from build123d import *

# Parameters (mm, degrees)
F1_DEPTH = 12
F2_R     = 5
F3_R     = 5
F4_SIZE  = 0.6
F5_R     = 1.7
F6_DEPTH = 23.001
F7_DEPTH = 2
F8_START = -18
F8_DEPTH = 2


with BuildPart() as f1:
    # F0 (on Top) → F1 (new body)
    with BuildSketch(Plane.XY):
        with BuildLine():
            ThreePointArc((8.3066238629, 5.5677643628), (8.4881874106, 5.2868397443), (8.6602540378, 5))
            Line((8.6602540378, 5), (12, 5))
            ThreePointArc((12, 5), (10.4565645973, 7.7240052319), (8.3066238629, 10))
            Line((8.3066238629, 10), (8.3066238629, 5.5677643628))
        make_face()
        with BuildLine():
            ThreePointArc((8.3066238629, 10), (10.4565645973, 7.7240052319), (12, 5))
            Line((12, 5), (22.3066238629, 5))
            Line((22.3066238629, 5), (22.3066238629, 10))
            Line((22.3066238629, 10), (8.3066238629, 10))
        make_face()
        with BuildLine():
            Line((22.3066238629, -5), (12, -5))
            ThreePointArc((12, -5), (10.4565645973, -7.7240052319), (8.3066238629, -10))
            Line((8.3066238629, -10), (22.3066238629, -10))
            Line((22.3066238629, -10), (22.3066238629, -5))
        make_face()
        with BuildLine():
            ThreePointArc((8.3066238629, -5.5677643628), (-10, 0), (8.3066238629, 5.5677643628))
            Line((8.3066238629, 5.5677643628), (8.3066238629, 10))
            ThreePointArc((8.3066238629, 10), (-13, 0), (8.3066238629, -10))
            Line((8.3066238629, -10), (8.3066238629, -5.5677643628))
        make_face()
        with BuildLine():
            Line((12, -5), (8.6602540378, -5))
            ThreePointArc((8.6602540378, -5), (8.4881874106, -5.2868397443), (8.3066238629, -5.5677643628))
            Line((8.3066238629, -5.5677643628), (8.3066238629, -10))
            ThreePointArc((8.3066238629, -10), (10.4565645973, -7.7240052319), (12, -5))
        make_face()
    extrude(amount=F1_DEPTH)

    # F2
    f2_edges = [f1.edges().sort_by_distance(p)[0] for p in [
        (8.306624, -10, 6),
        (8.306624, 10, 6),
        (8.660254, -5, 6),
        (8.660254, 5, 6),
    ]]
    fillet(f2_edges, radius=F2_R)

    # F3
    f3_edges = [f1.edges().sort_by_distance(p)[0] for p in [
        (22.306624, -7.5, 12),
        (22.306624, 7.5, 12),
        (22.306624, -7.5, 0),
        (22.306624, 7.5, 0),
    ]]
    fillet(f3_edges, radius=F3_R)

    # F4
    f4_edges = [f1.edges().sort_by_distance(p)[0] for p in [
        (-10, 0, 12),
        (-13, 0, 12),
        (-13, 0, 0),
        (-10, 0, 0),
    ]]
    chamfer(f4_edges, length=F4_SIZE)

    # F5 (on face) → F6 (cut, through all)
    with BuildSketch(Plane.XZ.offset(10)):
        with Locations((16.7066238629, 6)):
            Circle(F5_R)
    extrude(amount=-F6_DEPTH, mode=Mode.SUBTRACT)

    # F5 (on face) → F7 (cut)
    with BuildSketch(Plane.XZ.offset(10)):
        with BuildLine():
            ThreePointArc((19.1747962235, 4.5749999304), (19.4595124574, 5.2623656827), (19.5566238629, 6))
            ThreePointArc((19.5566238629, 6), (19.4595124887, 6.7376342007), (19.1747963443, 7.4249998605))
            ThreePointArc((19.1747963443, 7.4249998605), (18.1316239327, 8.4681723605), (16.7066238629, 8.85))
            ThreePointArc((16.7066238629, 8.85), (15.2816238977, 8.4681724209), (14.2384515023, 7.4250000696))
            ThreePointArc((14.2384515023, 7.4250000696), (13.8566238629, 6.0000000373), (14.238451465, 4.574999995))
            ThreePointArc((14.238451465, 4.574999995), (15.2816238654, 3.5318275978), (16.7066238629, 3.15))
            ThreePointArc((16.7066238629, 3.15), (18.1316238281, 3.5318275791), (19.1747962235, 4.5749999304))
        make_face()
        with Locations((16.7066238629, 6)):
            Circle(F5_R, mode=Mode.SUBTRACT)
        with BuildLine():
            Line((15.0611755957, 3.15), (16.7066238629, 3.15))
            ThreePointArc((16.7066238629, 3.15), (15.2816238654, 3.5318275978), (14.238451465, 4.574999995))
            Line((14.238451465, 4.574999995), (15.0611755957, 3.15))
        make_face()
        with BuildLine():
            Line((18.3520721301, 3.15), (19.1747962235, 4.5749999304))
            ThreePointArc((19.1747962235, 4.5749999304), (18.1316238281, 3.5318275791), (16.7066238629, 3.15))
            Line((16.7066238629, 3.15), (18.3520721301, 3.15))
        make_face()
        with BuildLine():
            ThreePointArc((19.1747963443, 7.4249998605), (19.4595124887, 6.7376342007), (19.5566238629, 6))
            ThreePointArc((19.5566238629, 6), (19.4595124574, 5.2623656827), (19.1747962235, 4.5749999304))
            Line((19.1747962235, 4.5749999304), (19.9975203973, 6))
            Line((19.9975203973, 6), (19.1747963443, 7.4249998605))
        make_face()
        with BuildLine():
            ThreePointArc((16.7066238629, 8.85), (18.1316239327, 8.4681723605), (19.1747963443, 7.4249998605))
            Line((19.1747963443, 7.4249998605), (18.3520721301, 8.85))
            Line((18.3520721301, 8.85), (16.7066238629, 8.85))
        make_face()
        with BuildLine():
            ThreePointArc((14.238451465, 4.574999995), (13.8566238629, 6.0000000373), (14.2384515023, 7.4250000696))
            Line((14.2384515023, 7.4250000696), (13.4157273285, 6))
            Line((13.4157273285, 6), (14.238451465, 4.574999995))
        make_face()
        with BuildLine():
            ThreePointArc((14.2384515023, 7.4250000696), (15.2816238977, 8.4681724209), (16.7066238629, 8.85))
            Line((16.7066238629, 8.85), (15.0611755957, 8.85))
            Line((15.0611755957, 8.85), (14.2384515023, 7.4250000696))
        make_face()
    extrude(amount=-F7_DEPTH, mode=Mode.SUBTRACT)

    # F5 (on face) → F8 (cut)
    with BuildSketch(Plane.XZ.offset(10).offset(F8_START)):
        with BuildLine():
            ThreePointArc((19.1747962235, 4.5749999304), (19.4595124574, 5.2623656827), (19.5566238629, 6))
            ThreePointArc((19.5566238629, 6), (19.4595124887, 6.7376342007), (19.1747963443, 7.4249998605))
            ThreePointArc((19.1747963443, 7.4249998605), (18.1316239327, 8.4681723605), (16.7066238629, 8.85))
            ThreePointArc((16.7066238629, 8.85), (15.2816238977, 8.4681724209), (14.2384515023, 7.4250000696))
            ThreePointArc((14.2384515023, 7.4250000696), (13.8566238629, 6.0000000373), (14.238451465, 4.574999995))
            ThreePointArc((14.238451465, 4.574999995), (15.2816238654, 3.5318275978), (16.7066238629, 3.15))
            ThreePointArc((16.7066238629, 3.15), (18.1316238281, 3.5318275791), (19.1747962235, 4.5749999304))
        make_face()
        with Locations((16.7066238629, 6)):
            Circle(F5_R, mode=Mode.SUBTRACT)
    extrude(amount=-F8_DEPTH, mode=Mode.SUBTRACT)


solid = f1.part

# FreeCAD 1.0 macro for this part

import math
import FreeCAD as App
import Part
import Sketcher
from FreeCAD import Vector
Q = App.Units.Quantity


def edges_at(feature, points):
    """Names of the edges that pass closest to the given points."""
    edges = feature.Shape.Edges
    near = lambda p: min(range(len(edges)), key=lambda i: edges[i].distToShape(Part.Vertex(*p))[0])
    return sorted({f"Edge{near(p) + 1}" for p in points})

doc = App.newDocument("Part")
params = doc.addObject("Spreadsheet::Sheet", "Params")
for row, (alias, value) in enumerate([
    ("sketch1_radius", "13 mm"),
    ("sketch1_radius2", "10 mm"),
    ("sketch1_width", "14 mm"),
    ("sketch1_height", "5 mm"),
    ("pad1_length", "12 mm"),
    ("fillet_radius", "5 mm"),
    ("fillet2_radius", "5 mm"),
    ("chamfer_size", "0.6 mm"),
    ("sketch2_diameter", "3.4 mm"),
    ("sketch3_diameter", "3.4 mm"),
    ("pocket2_length", "2 mm"),
    ("sketch4_diameter", "3.4 mm"),
    ("sketch4_radius", "2.85 mm"),
    ("pocket3_length", "2 mm"),
], start=1):
    params.set(f"A{row}", alias)
    params.set(f"B{row}", "=" + value)
    params.setAlias(f"B{row}", alias)

body = doc.addObject("PartDesign::Body", "Body")

# Sketch on XY plane
sketch1 = doc.addObject("Sketcher::SketchObject", "Sketch")
body.addObject(sketch1)
sketch1.AttachmentSupport = (doc.XY_Plane, [""])
sketch1.MapMode = "FlatFace"
sketch1.addGeometry(Part.LineSegment(Vector(8.7, 5, 0), Vector(22.3, 5, 0)), False)
sketch1.addGeometry(Part.LineSegment(Vector(22.3, 5, 0), Vector(22.3, 10, 0)), False)
sketch1.addGeometry(Part.LineSegment(Vector(22.3, 10, 0), Vector(8.3, 10, 0)), False)
sketch1.addGeometry(Part.ArcOfCircle(Part.Circle(Vector(0, 0, 0), Vector(0, 0, 1), 13), math.radians(50), math.radians(310)), False)
sketch1.addGeometry(Part.LineSegment(Vector(8.3, -10, 0), Vector(22.3, -10, 0)), False)
sketch1.addGeometry(Part.LineSegment(Vector(22.3, -10, 0), Vector(22.3, -5, 0)), False)
sketch1.addGeometry(Part.LineSegment(Vector(22.3, -5, 0), Vector(8.7, -5, 0)), False)
sketch1.addGeometry(Part.ArcOfCircle(Part.Circle(Vector(0, 0, 0), Vector(0, 0, 1), 10), math.radians(-33.83), math.radians(-30)), False)
sketch1.addGeometry(Part.ArcOfCircle(Part.Circle(Vector(0, 0, 0), Vector(0, 0, 1), 10), math.radians(34), math.radians(326)), False)
sketch1.addGeometry(Part.ArcOfCircle(Part.Circle(Vector(0, 0, 0), Vector(0, 0, 1), 10), math.radians(30), math.radians(33.83)), False)
sketch1.addConstraint(Sketcher.Constraint("Coincident", 0, 2, 1, 1))
sketch1.addConstraint(Sketcher.Constraint("Coincident", 1, 2, 2, 1))
sketch1.addConstraint(Sketcher.Constraint("Coincident", 2, 2, 3, 1))
sketch1.addConstraint(Sketcher.Constraint("Coincident", 3, 2, 4, 1))
sketch1.addConstraint(Sketcher.Constraint("Coincident", 4, 2, 5, 1))
sketch1.addConstraint(Sketcher.Constraint("Coincident", 5, 2, 6, 1))
sketch1.addConstraint(Sketcher.Constraint("Coincident", 6, 2, 7, 2))
sketch1.addConstraint(Sketcher.Constraint("Tangent", 7, 1, 8, 2))
sketch1.addConstraint(Sketcher.Constraint("Tangent", 8, 1, 9, 2))
sketch1.addConstraint(Sketcher.Constraint("Coincident", 9, 1, 0, 1))
sketch1.addConstraint(Sketcher.Constraint("Horizontal", 0))
sketch1.addConstraint(Sketcher.Constraint("Vertical", 1))
sketch1.addConstraint(Sketcher.Constraint("Horizontal", 2))
sketch1.addConstraint(Sketcher.Constraint("Horizontal", 4))
sketch1.addConstraint(Sketcher.Constraint("Vertical", 5))
sketch1.addConstraint(Sketcher.Constraint("Horizontal", 6))
sketch1.addConstraint(Sketcher.Constraint("Coincident", 3, 3, -1, 1))
sketch1.addConstraint(Sketcher.Constraint("Coincident", 7, 3, -1, 1))
sketch1.addConstraint(Sketcher.Constraint("Coincident", 9, 3, -1, 1))
sketch1.addConstraint(Sketcher.Constraint("Symmetric", 1, 2, 4, 2, -1))
sketch1.addConstraint(Sketcher.Constraint("Vertical", 3, 2, 7, 1))
sketch1.addConstraint(Sketcher.Constraint("Vertical", 7, 1, 8, 1))
sketch1.addConstraint(Sketcher.Constraint("Vertical", 6, 2, 9, 1))
sketch1.addConstraint(Sketcher.Constraint("Radius", 3, Q("13 mm")))
sketch1.addConstraint(Sketcher.Constraint("Radius", 7, Q("10 mm")))
sketch1.addConstraint(Sketcher.Constraint("DistanceX", 2, 2, 2, 1, Q("14 mm")))
sketch1.addConstraint(Sketcher.Constraint("DistanceY", 1, 1, 1, 2, Q("5 mm")))
sketch1.addConstraint(Sketcher.Constraint("DistanceY", -1, 1, 0, 2, Q("5 mm")))
sketch1.setExpression("Constraints[23]", "Params.sketch1_radius")
sketch1.setExpression("Constraints[24]", "Params.sketch1_radius2")
sketch1.setExpression("Constraints[25]", "Params.sketch1_width")
sketch1.setExpression("Constraints[26]", "Params.sketch1_height")
pad1 = doc.addObject("PartDesign::Pad", "Pad")
body.addObject(pad1)
pad1.Profile = sketch1
pad1.setExpression("Length", "Params.pad1_length")
doc.recompute()

fillet = doc.addObject("PartDesign::Fillet", "Fillet")
body.addObject(fillet)
fillet.Base = (pad1, edges_at(pad1, [
    (8.307, -10, 6),
    (8.307, 10, 6),
    (8.66, -5, 6),
    (8.66, 5, 6),
]))
fillet.setExpression("Radius", "Params.fillet_radius")
doc.recompute()

fillet2 = doc.addObject("PartDesign::Fillet", "Fillet001")
body.addObject(fillet2)
fillet2.Base = (fillet, edges_at(fillet, [
    (22.307, -7.5, 12),
    (22.307, 7.5, 12),
    (22.307, -7.5, 0),
    (22.307, 7.5, 0),
]))
fillet2.setExpression("Radius", "Params.fillet2_radius")
doc.recompute()

chamfer = doc.addObject("PartDesign::Chamfer", "Chamfer")
body.addObject(chamfer)
chamfer.Base = (fillet2, edges_at(fillet2, [
    (-10, 0, 12),
    (-13, 0, 12),
    (-13, 0, 0),
    (-10, 0, 0),
]))
chamfer.setExpression("Size", "Params.chamfer_size")

# Sketch on XZ plane
sketch2 = doc.addObject("Sketcher::SketchObject", "Sketch001")
body.addObject(sketch2)
sketch2.AttachmentSupport = (doc.XZ_Plane, [""])
sketch2.MapMode = "FlatFace"
sketch2.AttachmentOffset = App.Placement(Vector(0, 0, 10), App.Rotation())
sketch2.addGeometry(Part.Circle(Vector(16.7, 6, 0), Vector(0, 0, 1), 1.7), False)
sketch2.addConstraint(Sketcher.Constraint("Diameter", 0, Q("3.4 mm")))
sketch2.addConstraint(Sketcher.Constraint("DistanceY", -1, 1, 0, 3, Q("6 mm")))
sketch2.addConstraint(Sketcher.Constraint("DistanceX", -1, 1, 0, 3, Q("16.706624 mm")))
sketch2.setExpression("Constraints[0]", "Params.sketch2_diameter")
pocket1 = doc.addObject("PartDesign::Pocket", "Pocket")
body.addObject(pocket1)
pocket1.Profile = sketch2
pocket1.Type = "ThroughAll"

# Sketch on XZ plane
sketch3 = doc.addObject("Sketcher::SketchObject", "Sketch002")
body.addObject(sketch3)
sketch3.AttachmentSupport = (doc.XZ_Plane, [""])
sketch3.MapMode = "FlatFace"
sketch3.AttachmentOffset = App.Placement(Vector(0, 0, 10), App.Rotation())
sketch3.addGeometry(Part.LineSegment(Vector(14.2, 7.4, 0), Vector(13.4, 6, 0)), False)
sketch3.addGeometry(Part.LineSegment(Vector(13.4, 6, 0), Vector(14.2, 4.6, 0)), False)
sketch3.addGeometry(Part.LineSegment(Vector(14.2, 4.6, 0), Vector(15.1, 3.1, 0)), False)
sketch3.addGeometry(Part.LineSegment(Vector(15.1, 3.1, 0), Vector(18.4, 3.1, 0)), False)
sketch3.addGeometry(Part.LineSegment(Vector(18.4, 3.1, 0), Vector(19.2, 4.6, 0)), False)
sketch3.addGeometry(Part.LineSegment(Vector(19.2, 4.6, 0), Vector(20, 6, 0)), False)
sketch3.addGeometry(Part.LineSegment(Vector(20, 6, 0), Vector(19.2, 7.4, 0)), False)
sketch3.addGeometry(Part.LineSegment(Vector(19.2, 7.4, 0), Vector(18.4, 8.8, 0)), False)
sketch3.addGeometry(Part.LineSegment(Vector(18.4, 8.8, 0), Vector(15.1, 8.8, 0)), False)
sketch3.addGeometry(Part.LineSegment(Vector(15.1, 8.8, 0), Vector(14.2, 7.4, 0)), False)
sketch3.addGeometry(Part.Circle(Vector(16.7, 6, 0), Vector(0, 0, 1), 1.7), False)
sketch3.addConstraint(Sketcher.Constraint("Coincident", 0, 2, 1, 1))
sketch3.addConstraint(Sketcher.Constraint("Coincident", 1, 2, 2, 1))
sketch3.addConstraint(Sketcher.Constraint("Coincident", 2, 2, 3, 1))
sketch3.addConstraint(Sketcher.Constraint("Coincident", 3, 2, 4, 1))
sketch3.addConstraint(Sketcher.Constraint("Coincident", 4, 2, 5, 1))
sketch3.addConstraint(Sketcher.Constraint("Coincident", 5, 2, 6, 1))
sketch3.addConstraint(Sketcher.Constraint("Coincident", 6, 2, 7, 1))
sketch3.addConstraint(Sketcher.Constraint("Coincident", 7, 2, 8, 1))
sketch3.addConstraint(Sketcher.Constraint("Coincident", 8, 2, 9, 1))
sketch3.addConstraint(Sketcher.Constraint("Coincident", 9, 2, 0, 1))
sketch3.addConstraint(Sketcher.Constraint("Horizontal", 3))
sketch3.addConstraint(Sketcher.Constraint("Horizontal", 8))
sketch3.addConstraint(Sketcher.Constraint("Parallel", 1, 2))
sketch3.addConstraint(Sketcher.Constraint("Parallel", 0, 4))
sketch3.addConstraint(Sketcher.Constraint("Parallel", 4, 5))
sketch3.addConstraint(Sketcher.Constraint("Parallel", 2, 6))
sketch3.addConstraint(Sketcher.Constraint("Parallel", 6, 7))
sketch3.addConstraint(Sketcher.Constraint("Parallel", 5, 9))
sketch3.addConstraint(Sketcher.Constraint("Horizontal", 10, 3, 0, 2))
sketch3.addConstraint(Sketcher.Constraint("Horizontal", 1, 2, 4, 2))
sketch3.addConstraint(Sketcher.Constraint("Horizontal", 0, 2, 5, 2))
sketch3.addConstraint(Sketcher.Constraint("Horizontal", 6, 2, 9, 2))
sketch3.addConstraint(Sketcher.Constraint("Vertical", 4, 2, 6, 2))
sketch3.addConstraint(Sketcher.Constraint("Vertical", 3, 2, 7, 2))
sketch3.addConstraint(Sketcher.Constraint("Vertical", 2, 2, 8, 2))
sketch3.addConstraint(Sketcher.Constraint("Equal", 1, 2))
sketch3.addConstraint(Sketcher.Constraint("Diameter", 10, Q("3.4 mm")))
sketch3.addConstraint(Sketcher.Constraint("Angle", 0, Q("-120 deg")))
sketch3.addConstraint(Sketcher.Constraint("DistanceY", -1, 1, 10, 3, Q("6 mm")))
sketch3.addConstraint(Sketcher.Constraint("DistanceY", 3, 2, 7, 2, Q("5.7 mm")))
sketch3.addConstraint(Sketcher.Constraint("DistanceX", 3, 1, 3, 2, Q("3.290897 mm")))
sketch3.addConstraint(Sketcher.Constraint("DistanceX", -1, 1, 1, 2, Q("14.238451 mm")))
sketch3.addConstraint(Sketcher.Constraint("DistanceX", 2, 2, 10, 3, Q("1.645448 mm")))
sketch3.setExpression("Constraints[26]", "Params.sketch3_diameter")
pocket2 = doc.addObject("PartDesign::Pocket", "Pocket001")
body.addObject(pocket2)
pocket2.Profile = sketch3
pocket2.setExpression("Length", "Params.pocket2_length")

# Sketch on XZ plane
sketch4 = doc.addObject("Sketcher::SketchObject", "Sketch003")
body.addObject(sketch4)
sketch4.AttachmentSupport = (doc.XZ_Plane, [""])
sketch4.MapMode = "FlatFace"
sketch4.AttachmentOffset = App.Placement(Vector(0, 0, -8), App.Rotation())
sketch4.addGeometry(Part.ArcOfCircle(Part.Circle(Vector(16.7, 6, 0), Vector(0, 0, 1), 2.9), math.radians(-30), math.radians(0)), False)
sketch4.addGeometry(Part.ArcOfCircle(Part.Circle(Vector(16.7, 6, 0), Vector(0, 0, 1), 2.9), math.radians(0), math.radians(30)), False)
sketch4.addGeometry(Part.ArcOfCircle(Part.Circle(Vector(16.7, 6, 0), Vector(0, 0, 1), 2.9), math.radians(30), math.radians(90)), False)
sketch4.addGeometry(Part.ArcOfCircle(Part.Circle(Vector(16.7, 6, 0), Vector(0, 0, 1), 2.9), math.radians(90), math.radians(150)), False)
sketch4.addGeometry(Part.ArcOfCircle(Part.Circle(Vector(16.7, 6, 0), Vector(0, 0, 1), 2.9), math.radians(150), math.radians(210)), False)
sketch4.addGeometry(Part.ArcOfCircle(Part.Circle(Vector(16.7, 6, 0), Vector(0, 0, 1), 2.9), math.radians(-150), math.radians(-90)), False)
sketch4.addGeometry(Part.ArcOfCircle(Part.Circle(Vector(16.7, 6, 0), Vector(0, 0, 1), 2.9), math.radians(-90), math.radians(-30)), False)
sketch4.addGeometry(Part.Circle(Vector(16.7, 6, 0), Vector(0, 0, 1), 1.7), False)
sketch4.addConstraint(Sketcher.Constraint("Tangent", 0, 2, 1, 1))
sketch4.addConstraint(Sketcher.Constraint("Tangent", 1, 2, 2, 1))
sketch4.addConstraint(Sketcher.Constraint("Tangent", 2, 2, 3, 1))
sketch4.addConstraint(Sketcher.Constraint("Tangent", 3, 2, 4, 1))
sketch4.addConstraint(Sketcher.Constraint("Tangent", 4, 2, 5, 1))
sketch4.addConstraint(Sketcher.Constraint("Tangent", 5, 2, 6, 1))
sketch4.addConstraint(Sketcher.Constraint("Tangent", 6, 2, 0, 1))
sketch4.addConstraint(Sketcher.Constraint("Coincident", 2, 3, 0, 3))
sketch4.addConstraint(Sketcher.Constraint("Coincident", 4, 3, 0, 3))
sketch4.addConstraint(Sketcher.Constraint("Coincident", 7, 3, 0, 3))
sketch4.addConstraint(Sketcher.Constraint("Horizontal", 7, 3, 0, 2))
sketch4.addConstraint(Sketcher.Constraint("Horizontal", 1, 2, 3, 2))
sketch4.addConstraint(Sketcher.Constraint("Horizontal", 4, 2, 6, 2))
sketch4.addConstraint(Sketcher.Constraint("Vertical", 7, 3, 2, 2))
sketch4.addConstraint(Sketcher.Constraint("Vertical", 3, 2, 4, 2))
sketch4.addConstraint(Sketcher.Constraint("Vertical", 2, 2, 5, 2))
sketch4.addConstraint(Sketcher.Constraint("Diameter", 7, Q("3.4 mm")))
sketch4.addConstraint(Sketcher.Constraint("Radius", 0, Q("2.85 mm")))
sketch4.addConstraint(Sketcher.Constraint("DistanceY", -1, 1, 0, 3, Q("6 mm")))
sketch4.addConstraint(Sketcher.Constraint("DistanceY", 6, 2, 1, 2, Q("2.85 mm")))
sketch4.addConstraint(Sketcher.Constraint("DistanceX", -1, 1, 3, 2, Q("14.238452 mm")))
sketch4.setExpression("Constraints[16]", "Params.sketch4_diameter")
sketch4.setExpression("Constraints[17]", "Params.sketch4_radius")
pocket3 = doc.addObject("PartDesign::Pocket", "Pocket002")
body.addObject(pocket3)
pocket3.Profile = sketch4
pocket3.setExpression("Length", "Params.pocket3_length")

doc.recompute()
